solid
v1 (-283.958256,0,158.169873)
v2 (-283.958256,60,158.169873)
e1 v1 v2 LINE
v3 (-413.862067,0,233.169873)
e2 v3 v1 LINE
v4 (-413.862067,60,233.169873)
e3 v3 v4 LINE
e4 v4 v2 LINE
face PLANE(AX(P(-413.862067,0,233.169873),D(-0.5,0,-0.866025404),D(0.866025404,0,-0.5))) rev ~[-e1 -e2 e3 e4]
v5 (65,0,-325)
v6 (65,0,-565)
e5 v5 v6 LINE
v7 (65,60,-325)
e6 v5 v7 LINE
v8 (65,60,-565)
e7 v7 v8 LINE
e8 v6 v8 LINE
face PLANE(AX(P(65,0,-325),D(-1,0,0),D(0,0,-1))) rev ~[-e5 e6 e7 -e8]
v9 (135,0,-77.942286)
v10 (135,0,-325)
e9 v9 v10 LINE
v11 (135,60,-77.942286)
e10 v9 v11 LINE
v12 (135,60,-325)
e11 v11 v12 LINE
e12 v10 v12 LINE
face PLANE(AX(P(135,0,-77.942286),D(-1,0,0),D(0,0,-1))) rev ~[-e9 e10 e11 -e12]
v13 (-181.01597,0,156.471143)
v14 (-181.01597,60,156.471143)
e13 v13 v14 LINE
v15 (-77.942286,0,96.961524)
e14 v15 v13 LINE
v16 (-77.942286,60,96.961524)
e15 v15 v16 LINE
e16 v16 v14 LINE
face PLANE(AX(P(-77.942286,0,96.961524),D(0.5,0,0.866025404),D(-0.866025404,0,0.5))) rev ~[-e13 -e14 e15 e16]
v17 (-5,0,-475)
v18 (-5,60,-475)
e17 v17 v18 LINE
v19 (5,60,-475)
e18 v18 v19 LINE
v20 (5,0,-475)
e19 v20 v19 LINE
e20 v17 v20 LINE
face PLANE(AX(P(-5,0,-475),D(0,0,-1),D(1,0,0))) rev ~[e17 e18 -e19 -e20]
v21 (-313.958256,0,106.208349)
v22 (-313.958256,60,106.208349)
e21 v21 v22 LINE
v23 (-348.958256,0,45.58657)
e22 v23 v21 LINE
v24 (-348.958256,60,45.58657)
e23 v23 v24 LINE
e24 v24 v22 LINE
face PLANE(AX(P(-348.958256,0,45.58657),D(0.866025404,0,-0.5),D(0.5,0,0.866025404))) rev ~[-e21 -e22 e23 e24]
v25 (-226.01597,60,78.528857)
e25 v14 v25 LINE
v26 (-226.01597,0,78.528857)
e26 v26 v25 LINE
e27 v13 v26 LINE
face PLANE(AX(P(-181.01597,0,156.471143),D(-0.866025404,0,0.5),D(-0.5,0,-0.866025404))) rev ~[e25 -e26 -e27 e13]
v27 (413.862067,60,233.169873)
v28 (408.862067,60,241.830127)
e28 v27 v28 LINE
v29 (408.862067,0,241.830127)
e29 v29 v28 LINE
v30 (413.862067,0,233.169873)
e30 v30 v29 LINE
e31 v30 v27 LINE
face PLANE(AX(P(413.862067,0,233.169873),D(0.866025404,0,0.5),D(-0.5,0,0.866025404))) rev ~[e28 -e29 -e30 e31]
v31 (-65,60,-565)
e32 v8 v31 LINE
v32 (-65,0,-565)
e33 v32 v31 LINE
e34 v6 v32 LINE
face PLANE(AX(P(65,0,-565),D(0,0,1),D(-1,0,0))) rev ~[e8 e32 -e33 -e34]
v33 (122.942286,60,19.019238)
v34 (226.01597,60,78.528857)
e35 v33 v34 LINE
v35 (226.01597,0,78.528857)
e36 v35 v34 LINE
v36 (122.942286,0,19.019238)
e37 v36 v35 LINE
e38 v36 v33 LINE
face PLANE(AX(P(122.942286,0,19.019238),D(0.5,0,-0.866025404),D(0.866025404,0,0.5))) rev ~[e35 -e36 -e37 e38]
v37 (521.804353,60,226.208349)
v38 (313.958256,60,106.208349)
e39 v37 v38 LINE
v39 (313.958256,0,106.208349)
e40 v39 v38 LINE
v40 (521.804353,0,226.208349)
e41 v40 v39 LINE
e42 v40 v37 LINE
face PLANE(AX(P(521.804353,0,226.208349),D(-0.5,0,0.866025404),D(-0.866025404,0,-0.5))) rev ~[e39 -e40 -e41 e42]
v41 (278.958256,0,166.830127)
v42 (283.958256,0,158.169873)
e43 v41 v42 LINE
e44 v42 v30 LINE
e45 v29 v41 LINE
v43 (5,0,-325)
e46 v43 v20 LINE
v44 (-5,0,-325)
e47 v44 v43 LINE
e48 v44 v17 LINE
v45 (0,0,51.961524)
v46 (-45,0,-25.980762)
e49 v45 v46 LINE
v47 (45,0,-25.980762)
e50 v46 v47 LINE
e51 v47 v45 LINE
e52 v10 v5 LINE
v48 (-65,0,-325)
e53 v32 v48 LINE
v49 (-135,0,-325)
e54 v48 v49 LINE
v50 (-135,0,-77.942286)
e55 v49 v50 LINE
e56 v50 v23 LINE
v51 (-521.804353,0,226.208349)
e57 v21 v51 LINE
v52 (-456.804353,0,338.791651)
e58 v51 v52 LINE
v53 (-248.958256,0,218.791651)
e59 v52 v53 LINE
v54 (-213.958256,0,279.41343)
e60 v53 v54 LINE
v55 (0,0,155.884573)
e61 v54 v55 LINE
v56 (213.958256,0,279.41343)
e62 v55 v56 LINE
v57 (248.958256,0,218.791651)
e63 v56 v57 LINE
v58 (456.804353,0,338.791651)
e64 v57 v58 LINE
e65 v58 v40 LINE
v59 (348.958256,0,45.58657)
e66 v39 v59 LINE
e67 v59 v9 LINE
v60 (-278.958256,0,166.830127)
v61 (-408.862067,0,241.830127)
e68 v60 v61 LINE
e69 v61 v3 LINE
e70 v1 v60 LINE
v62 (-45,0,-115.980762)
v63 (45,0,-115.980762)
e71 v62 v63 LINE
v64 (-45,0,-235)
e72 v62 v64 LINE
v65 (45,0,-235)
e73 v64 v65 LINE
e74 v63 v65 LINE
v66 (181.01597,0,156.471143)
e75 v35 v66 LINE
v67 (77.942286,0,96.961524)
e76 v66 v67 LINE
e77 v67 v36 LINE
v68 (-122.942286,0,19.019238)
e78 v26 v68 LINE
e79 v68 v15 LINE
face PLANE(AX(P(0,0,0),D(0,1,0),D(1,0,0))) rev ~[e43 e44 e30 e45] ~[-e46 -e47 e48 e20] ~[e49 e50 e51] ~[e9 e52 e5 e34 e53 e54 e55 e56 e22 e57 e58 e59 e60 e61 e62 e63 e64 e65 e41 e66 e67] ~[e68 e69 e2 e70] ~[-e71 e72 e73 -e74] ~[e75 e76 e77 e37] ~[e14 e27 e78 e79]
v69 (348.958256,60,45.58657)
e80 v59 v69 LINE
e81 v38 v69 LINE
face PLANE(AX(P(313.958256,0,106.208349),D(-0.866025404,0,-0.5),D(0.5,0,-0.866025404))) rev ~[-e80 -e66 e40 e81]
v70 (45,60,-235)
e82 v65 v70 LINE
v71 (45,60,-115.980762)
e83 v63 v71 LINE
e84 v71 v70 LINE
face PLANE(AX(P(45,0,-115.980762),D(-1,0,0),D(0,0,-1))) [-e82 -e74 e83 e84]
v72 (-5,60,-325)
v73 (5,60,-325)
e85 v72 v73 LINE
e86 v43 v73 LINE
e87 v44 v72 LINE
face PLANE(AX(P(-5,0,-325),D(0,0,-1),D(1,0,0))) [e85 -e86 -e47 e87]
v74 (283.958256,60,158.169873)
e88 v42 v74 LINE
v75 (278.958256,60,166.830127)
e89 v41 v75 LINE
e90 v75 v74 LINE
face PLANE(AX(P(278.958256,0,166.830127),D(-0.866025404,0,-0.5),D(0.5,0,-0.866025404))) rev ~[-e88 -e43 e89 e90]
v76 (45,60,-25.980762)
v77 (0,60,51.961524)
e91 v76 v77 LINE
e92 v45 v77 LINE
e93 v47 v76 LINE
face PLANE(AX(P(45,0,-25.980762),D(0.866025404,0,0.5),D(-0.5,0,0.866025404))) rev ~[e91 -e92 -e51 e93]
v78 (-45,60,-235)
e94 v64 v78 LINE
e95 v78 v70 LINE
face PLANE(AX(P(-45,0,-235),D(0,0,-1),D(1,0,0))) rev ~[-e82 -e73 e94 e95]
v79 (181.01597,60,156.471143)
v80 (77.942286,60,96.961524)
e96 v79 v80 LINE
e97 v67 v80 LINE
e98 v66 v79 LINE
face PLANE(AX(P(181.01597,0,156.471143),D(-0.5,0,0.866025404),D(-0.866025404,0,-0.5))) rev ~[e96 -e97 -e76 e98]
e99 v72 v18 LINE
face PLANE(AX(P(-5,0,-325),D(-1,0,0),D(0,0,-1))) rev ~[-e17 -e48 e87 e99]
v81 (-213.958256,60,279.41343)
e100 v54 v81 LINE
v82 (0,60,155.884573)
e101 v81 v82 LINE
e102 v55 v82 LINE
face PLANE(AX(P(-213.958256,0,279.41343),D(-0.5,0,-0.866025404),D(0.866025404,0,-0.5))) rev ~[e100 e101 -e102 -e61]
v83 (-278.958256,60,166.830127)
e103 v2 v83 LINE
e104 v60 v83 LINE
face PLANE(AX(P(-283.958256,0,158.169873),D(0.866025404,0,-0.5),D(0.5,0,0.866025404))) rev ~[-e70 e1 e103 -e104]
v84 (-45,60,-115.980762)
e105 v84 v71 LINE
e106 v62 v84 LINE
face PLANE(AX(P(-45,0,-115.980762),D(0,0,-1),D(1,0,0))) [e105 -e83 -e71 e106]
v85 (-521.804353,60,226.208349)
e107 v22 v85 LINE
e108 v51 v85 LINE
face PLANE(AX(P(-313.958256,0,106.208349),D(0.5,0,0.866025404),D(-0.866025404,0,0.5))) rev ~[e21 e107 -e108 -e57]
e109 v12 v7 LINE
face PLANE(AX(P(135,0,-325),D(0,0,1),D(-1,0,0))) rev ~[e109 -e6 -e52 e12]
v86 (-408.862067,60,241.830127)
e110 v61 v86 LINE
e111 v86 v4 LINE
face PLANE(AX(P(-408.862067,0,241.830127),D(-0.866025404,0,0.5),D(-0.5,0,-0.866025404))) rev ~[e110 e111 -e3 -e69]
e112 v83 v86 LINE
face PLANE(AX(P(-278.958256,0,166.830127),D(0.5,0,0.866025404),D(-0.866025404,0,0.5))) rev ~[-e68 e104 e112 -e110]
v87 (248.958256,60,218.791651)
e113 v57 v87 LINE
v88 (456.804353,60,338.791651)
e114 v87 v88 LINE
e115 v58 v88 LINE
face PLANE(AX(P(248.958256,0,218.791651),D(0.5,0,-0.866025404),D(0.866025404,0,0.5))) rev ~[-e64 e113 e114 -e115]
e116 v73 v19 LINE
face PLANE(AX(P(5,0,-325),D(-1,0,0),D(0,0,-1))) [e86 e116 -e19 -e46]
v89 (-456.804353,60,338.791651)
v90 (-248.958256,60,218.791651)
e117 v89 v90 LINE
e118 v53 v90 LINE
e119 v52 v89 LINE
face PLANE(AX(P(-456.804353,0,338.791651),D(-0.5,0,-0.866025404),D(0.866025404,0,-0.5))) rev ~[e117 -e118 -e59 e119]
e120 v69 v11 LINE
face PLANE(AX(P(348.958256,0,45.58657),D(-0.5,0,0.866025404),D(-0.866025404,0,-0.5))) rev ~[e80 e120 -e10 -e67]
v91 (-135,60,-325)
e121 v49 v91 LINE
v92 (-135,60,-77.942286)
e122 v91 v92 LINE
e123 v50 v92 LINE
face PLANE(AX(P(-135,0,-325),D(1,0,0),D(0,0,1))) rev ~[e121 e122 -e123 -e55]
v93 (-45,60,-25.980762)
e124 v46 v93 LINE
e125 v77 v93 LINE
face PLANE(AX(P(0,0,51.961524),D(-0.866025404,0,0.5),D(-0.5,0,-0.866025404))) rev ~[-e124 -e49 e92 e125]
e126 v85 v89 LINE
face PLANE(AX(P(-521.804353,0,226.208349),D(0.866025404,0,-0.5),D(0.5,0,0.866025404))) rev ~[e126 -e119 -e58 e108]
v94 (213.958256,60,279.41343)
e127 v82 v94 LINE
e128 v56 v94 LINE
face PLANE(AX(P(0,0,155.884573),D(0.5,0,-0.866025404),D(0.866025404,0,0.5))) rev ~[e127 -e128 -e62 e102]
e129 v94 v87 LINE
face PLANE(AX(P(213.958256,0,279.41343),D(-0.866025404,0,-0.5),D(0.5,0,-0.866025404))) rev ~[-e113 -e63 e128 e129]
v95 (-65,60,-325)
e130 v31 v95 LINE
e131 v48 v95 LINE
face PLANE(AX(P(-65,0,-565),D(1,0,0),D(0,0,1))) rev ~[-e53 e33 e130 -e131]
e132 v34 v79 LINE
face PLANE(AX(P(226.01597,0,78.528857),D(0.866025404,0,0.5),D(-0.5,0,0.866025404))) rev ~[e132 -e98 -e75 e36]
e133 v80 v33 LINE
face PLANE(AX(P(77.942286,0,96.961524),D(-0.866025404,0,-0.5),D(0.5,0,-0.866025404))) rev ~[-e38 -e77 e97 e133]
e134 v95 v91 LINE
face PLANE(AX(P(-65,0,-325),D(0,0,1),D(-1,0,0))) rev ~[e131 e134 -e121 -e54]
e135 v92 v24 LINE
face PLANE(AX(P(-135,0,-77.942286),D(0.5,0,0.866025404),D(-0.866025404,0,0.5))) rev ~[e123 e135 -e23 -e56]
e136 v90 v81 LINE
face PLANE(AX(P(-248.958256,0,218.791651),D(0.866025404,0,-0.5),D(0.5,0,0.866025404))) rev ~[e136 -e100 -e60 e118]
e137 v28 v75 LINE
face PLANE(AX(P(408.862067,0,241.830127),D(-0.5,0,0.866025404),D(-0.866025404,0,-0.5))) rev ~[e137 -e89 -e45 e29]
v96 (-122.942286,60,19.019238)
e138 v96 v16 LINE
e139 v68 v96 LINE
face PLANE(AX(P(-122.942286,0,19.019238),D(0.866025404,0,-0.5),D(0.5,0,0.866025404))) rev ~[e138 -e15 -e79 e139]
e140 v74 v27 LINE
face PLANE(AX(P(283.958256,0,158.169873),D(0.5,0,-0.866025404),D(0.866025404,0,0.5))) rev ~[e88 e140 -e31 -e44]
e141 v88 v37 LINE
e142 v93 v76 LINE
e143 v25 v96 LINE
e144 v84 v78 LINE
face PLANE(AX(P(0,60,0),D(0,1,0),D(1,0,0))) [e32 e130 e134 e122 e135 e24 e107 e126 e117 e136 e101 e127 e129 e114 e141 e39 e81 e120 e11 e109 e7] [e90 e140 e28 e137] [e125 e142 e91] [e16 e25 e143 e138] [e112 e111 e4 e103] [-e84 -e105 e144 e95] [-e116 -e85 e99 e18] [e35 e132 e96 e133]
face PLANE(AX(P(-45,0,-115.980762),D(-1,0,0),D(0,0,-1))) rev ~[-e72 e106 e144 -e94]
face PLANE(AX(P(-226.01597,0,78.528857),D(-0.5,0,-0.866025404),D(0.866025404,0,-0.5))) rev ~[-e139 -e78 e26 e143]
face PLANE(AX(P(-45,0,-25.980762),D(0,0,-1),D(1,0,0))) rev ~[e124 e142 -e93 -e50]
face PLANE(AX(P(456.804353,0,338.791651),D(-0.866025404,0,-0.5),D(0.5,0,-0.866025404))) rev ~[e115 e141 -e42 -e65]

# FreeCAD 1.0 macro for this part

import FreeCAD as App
import Part
import Sketcher
Q = App.Units.Quantity

doc = App.newDocument("Part")
body = doc.addObject("PartDesign::Body", "Body")

sketch1 = doc.addObject("Sketcher::SketchObject", "Sketch")
body.addObject(sketch1)
sketch1.AttachmentSupport = (doc.XZ_Plane, [""])
sketch1.MapMode = "FlatFace"
sketch1.addGeometry([
    Part.LineSegment(App.Vector(-213.958256, 279.41343, 0), App.Vector(0, 155.884573, 0)),
    Part.LineSegment(App.Vector(0, 155.884573, 0), App.Vector(213.958256, 279.41343, 0)),
    Part.LineSegment(App.Vector(213.958256, 279.41343, 0), App.Vector(248.958256, 218.791651, 0)),
    Part.LineSegment(App.Vector(248.958256, 218.791651, 0), App.Vector(456.804353, 338.791651, 0)),
    Part.LineSegment(App.Vector(456.804353, 338.791651, 0), App.Vector(521.804353, 226.208349, 0)),
    Part.LineSegment(App.Vector(521.804353, 226.208349, 0), App.Vector(313.958256, 106.208349, 0)),
    Part.LineSegment(App.Vector(313.958256, 106.208349, 0), App.Vector(348.958256, 45.58657, 0)),
    Part.LineSegment(App.Vector(348.958256, 45.58657, 0), App.Vector(135, -77.942286, 0)),
    Part.LineSegment(App.Vector(135, -77.942286, 0), App.Vector(135, -325, 0)),
    Part.LineSegment(App.Vector(135, -325, 0), App.Vector(65, -325, 0)),
    Part.LineSegment(App.Vector(65, -325, 0), App.Vector(65, -565, 0)),
    Part.LineSegment(App.Vector(65, -565, 0), App.Vector(-65, -565, 0)),
    Part.LineSegment(App.Vector(-65, -565, 0), App.Vector(-65, -325, 0)),
    Part.LineSegment(App.Vector(-65, -325, 0), App.Vector(-135, -325, 0)),
    Part.LineSegment(App.Vector(-135, -325, 0), App.Vector(-135, -77.942286, 0)),
    Part.LineSegment(App.Vector(-135, -77.942286, 0), App.Vector(-348.958256, 45.58657, 0)),
    Part.LineSegment(App.Vector(-348.958256, 45.58657, 0), App.Vector(-313.958256, 106.208349, 0)),
    Part.LineSegment(App.Vector(-313.958256, 106.208349, 0), App.Vector(-521.804353, 226.208349, 0)),
    Part.LineSegment(App.Vector(-521.804353, 226.208349, 0), App.Vector(-456.804353, 338.791651, 0)),
    Part.LineSegment(App.Vector(-456.804353, 338.791651, 0), App.Vector(-248.958256, 218.791651, 0)),
    Part.LineSegment(App.Vector(-248.958256, 218.791651, 0), App.Vector(-213.958256, 279.41343, 0)),
    Part.LineSegment(App.Vector(-278.958256, 166.830127, 0), App.Vector(-408.862067, 241.830127, 0)),
    Part.LineSegment(App.Vector(-408.862067, 241.830127, 0), App.Vector(-413.862067, 233.169873, 0)),
    Part.LineSegment(App.Vector(-413.862067, 233.169873, 0), App.Vector(-283.958256, 158.169873, 0)),
    Part.LineSegment(App.Vector(-283.958256, 158.169873, 0), App.Vector(-278.958256, 166.830127, 0)),
    Part.LineSegment(App.Vector(-226.01597, 78.528857, 0), App.Vector(-122.942286, 19.019238, 0)),
    Part.LineSegment(App.Vector(-122.942286, 19.019238, 0), App.Vector(-77.942286, 96.961524, 0)),
    Part.LineSegment(App.Vector(-77.942286, 96.961524, 0), App.Vector(-181.01597, 156.471143, 0)),
    Part.LineSegment(App.Vector(-181.01597, 156.471143, 0), App.Vector(-226.01597, 78.528857, 0)),
    Part.LineSegment(App.Vector(226.01597, 78.528857, 0), App.Vector(181.01597, 156.471143, 0)),
    Part.LineSegment(App.Vector(181.01597, 156.471143, 0), App.Vector(77.942286, 96.961524, 0)),
    Part.LineSegment(App.Vector(77.942286, 96.961524, 0), App.Vector(122.942286, 19.019238, 0)),
    Part.LineSegment(App.Vector(122.942286, 19.019238, 0), App.Vector(226.01597, 78.528857, 0)),
    Part.LineSegment(App.Vector(408.862067, 241.830127, 0), App.Vector(278.958256, 166.830127, 0)),
    Part.LineSegment(App.Vector(278.958256, 166.830127, 0), App.Vector(283.958256, 158.169873, 0)),
    Part.LineSegment(App.Vector(283.958256, 158.169873, 0), App.Vector(413.862067, 233.169873, 0)),
    Part.LineSegment(App.Vector(413.862067, 233.169873, 0), App.Vector(408.862067, 241.830127, 0)),
    Part.LineSegment(App.Vector(45, -25.980762, 0), App.Vector(0, 51.961524, 0)),
    Part.LineSegment(App.Vector(0, 51.961524, 0), App.Vector(-45, -25.980762, 0)),
    Part.LineSegment(App.Vector(-45, -25.980762, 0), App.Vector(45, -25.980762, 0)),
    Part.LineSegment(App.Vector(45, -115.980762, 0), App.Vector(-45, -115.980762, 0)),
    Part.LineSegment(App.Vector(-45, -115.980762, 0), App.Vector(-45, -235, 0)),
    Part.LineSegment(App.Vector(-45, -235, 0), App.Vector(45, -235, 0)),
    Part.LineSegment(App.Vector(45, -235, 0), App.Vector(45, -115.980762, 0)),
    Part.LineSegment(App.Vector(5, -325, 0), App.Vector(-5, -325, 0)),
    Part.LineSegment(App.Vector(-5, -325, 0), App.Vector(-5, -475, 0)),
    Part.LineSegment(App.Vector(-5, -475, 0), App.Vector(5, -475, 0)),
    Part.LineSegment(App.Vector(5, -475, 0), App.Vector(5, -325, 0)),
], False)
sketch1.addConstraint([
    Sketcher.Constraint("Coincident", 0, 2, 1, 1),
    Sketcher.Constraint("Coincident", 1, 2, 2, 1),
    Sketcher.Constraint("Coincident", 2, 2, 3, 1),
    Sketcher.Constraint("Coincident", 3, 2, 4, 1),
    Sketcher.Constraint("Coincident", 4, 2, 5, 1),
    Sketcher.Constraint("Coincident", 5, 2, 6, 1),
    Sketcher.Constraint("Coincident", 6, 2, 7, 1),
    Sketcher.Constraint("Coincident", 7, 2, 8, 1),
    Sketcher.Constraint("Coincident", 8, 2, 9, 1),
    Sketcher.Constraint("Coincident", 9, 2, 10, 1),
    Sketcher.Constraint("Coincident", 10, 2, 11, 1),
    Sketcher.Constraint("Coincident", 11, 2, 12, 1),
    Sketcher.Constraint("Coincident", 12, 2, 13, 1),
    Sketcher.Constraint("Coincident", 13, 2, 14, 1),
    Sketcher.Constraint("Coincident", 14, 2, 15, 1),
    Sketcher.Constraint("Coincident", 15, 2, 16, 1),
    Sketcher.Constraint("Coincident", 16, 2, 17, 1),
    Sketcher.Constraint("Coincident", 17, 2, 18, 1),
    Sketcher.Constraint("Coincident", 18, 2, 19, 1),
    Sketcher.Constraint("Coincident", 19, 2, 20, 1),
    Sketcher.Constraint("Coincident", 20, 2, 0, 1),
    Sketcher.Constraint("Coincident", 21, 2, 22, 1),
    Sketcher.Constraint("Coincident", 22, 2, 23, 1),
    Sketcher.Constraint("Coincident", 23, 2, 24, 1),
    Sketcher.Constraint("Coincident", 24, 2, 21, 1),
    Sketcher.Constraint("Coincident", 25, 2, 26, 1),
    Sketcher.Constraint("Coincident", 26, 2, 27, 1),
    Sketcher.Constraint("Coincident", 27, 2, 28, 1),
    Sketcher.Constraint("Coincident", 28, 2, 25, 1),
    Sketcher.Constraint("Coincident", 29, 2, 30, 1),
    Sketcher.Constraint("Coincident", 30, 2, 31, 1),
    Sketcher.Constraint("Coincident", 31, 2, 32, 1),
    Sketcher.Constraint("Coincident", 32, 2, 29, 1),
    Sketcher.Constraint("Coincident", 33, 2, 34, 1),
    Sketcher.Constraint("Coincident", 34, 2, 35, 1),
    Sketcher.Constraint("Coincident", 35, 2, 36, 1),
    Sketcher.Constraint("Coincident", 36, 2, 33, 1),
    Sketcher.Constraint("Coincident", 37, 2, 38, 1),
    Sketcher.Constraint("Coincident", 38, 2, 39, 1),
    Sketcher.Constraint("Coincident", 39, 2, 37, 1),
    Sketcher.Constraint("Coincident", 40, 2, 41, 1),
    Sketcher.Constraint("Coincident", 41, 2, 42, 1),
    Sketcher.Constraint("Coincident", 42, 2, 43, 1),
    Sketcher.Constraint("Coincident", 43, 2, 40, 1),
    Sketcher.Constraint("Coincident", 44, 2, 45, 1),
    Sketcher.Constraint("Coincident", 45, 2, 46, 1),
    Sketcher.Constraint("Coincident", 46, 2, 47, 1),
    Sketcher.Constraint("Coincident", 47, 2, 44, 1),
    Sketcher.Constraint("Vertical", 8),
    Sketcher.Constraint("Horizontal", 9),
    Sketcher.Constraint("Vertical", 10),
    Sketcher.Constraint("Horizontal", 11),
    Sketcher.Constraint("Vertical", 12),
    Sketcher.Constraint("Horizontal", 13),
    Sketcher.Constraint("Vertical", 14),
    Sketcher.Constraint("Horizontal", 39),
    Sketcher.Constraint("Horizontal", 40),
    Sketcher.Constraint("Vertical", 41),
    Sketcher.Constraint("Horizontal", 42),
    Sketcher.Constraint("Vertical", 43),
    Sketcher.Constraint("Horizontal", 44),
    Sketcher.Constraint("Vertical", 45),
    Sketcher.Constraint("Horizontal", 46),
    Sketcher.Constraint("Vertical", 47),
    Sketcher.Constraint("Symmetric", 9, 2, 12, 2, -2),
    Sketcher.Constraint("Symmetric", 7, 2, 14, 2, -2),
    Sketcher.Constraint("Symmetric", 6, 2, 15, 2, -2),
    Sketcher.Constraint("Symmetric", 5, 2, 16, 2, -2),
    Sketcher.Constraint("Symmetric", 4, 2, 17, 2, -2),
    Sketcher.Constraint("Symmetric", 3, 2, 18, 2, -2),
    Sketcher.Constraint("Symmetric", 2, 2, 19, 2, -2),
    Sketcher.Constraint("Symmetric", 1, 2, 20, 2, -2),
    Sketcher.Constraint("Symmetric", 27, 2, 29, 2, -2),
    Sketcher.Constraint("Symmetric", 26, 2, 30, 2, -2),
    Sketcher.Constraint("Symmetric", 25, 2, 31, 2, -2),
    Sketcher.Constraint("Symmetric", 28, 2, 32, 2, -2),
    Sketcher.Constraint("Symmetric", 24, 2, 33, 2, -2),
    Sketcher.Constraint("Symmetric", 23, 2, 34, 2, -2),
    Sketcher.Constraint("Symmetric", 22, 2, 35, 2, -2),
    Sketcher.Constraint("Symmetric", 21, 2, 36, 2, -2),
    Sketcher.Constraint("PointOnObject", 0, 2, -2),
    Sketcher.Constraint("PointOnObject", 37, 2, -2),
    Sketcher.Constraint("Perpendicular", 1, 2),
    Sketcher.Constraint("Perpendicular", 2, 3),
    Sketcher.Constraint("Perpendicular", 3, 4),
    Sketcher.Constraint("Perpendicular", 4, 5),
    Sketcher.Constraint("Perpendicular", 5, 6),
    Sketcher.Constraint("Perpendicular", 6, 7),
    Sketcher.Constraint("Perpendicular", 20, 21),
    Sketcher.Constraint("Perpendicular", 21, 22),
    Sketcher.Constraint("Perpendicular", 22, 23),
    Sketcher.Constraint("Perpendicular", 23, 24),
    Sketcher.Constraint("Perpendicular", 24, 25),
    Sketcher.Constraint("Perpendicular", 25, 26),
    Sketcher.Constraint("Perpendicular", 26, 27),
    Sketcher.Constraint("Perpendicular", 27, 28),
    Sketcher.Constraint("Parallel", 36, 37),
    Sketcher.Constraint("Parallel", 28, 38),
    Sketcher.Constraint("Horizontal", 13, 2, 44, 2),
    Sketcher.Constraint("Vertical", 38, 2, 40, 2),
    Sketcher.Constraint("Vertical", 39, 2, 42, 2),
    Sketcher.Constraint("Equal", 3, 5),
    Sketcher.Constraint("Equal", 2, 6),
    Sketcher.Constraint("Equal", 1, 7),
    Sketcher.Constraint("Equal", 31, 37),
    Sketcher.Constraint("DistanceX", 9, 2, 9, 1, Q("70 mm")),
    Sketcher.Constraint("DistanceX", 11, 2, 11, 1, Q("130 mm")),
    Sketcher.Constraint("DistanceX", 39, 1, 39, 2, Q("90 mm")),
    Sketcher.Constraint("DistanceX", 44, 2, 44, 1, Q("10 mm")),
    Sketcher.Constraint("DistanceY", 10, 2, 10, 1, Q("240 mm")),
    Sketcher.Constraint("DistanceY", 45, 2, 45, 1, Q("150 mm")),
    Sketcher.Constraint("Angle", 0, Q("-30 deg")),
    Sketcher.Constraint("Distance", 2, Q("70 mm")),
    Sketcher.Constraint("Distance", 3, Q("240 mm")),
    Sketcher.Constraint("Distance", 21, Q("150 mm")),
    Sketcher.Constraint("Distance", 22, Q("10 mm")),
    Sketcher.Constraint("DistanceY", 8, 2, -1, 1, Q("325 mm")),
    Sketcher.Constraint("DistanceY", 41, 2, -1, 1, Q("235 mm")),
    Sketcher.Constraint("DistanceX", 44, 2, -1, 1, Q("5 mm")),
    Sketcher.Constraint("DistanceX", 16, 2, 23, 2, Q("30 mm")),
    Sketcher.Constraint("DistanceY", 37, 2, 26, 2, Q("45 mm")),
    Sketcher.Constraint("DistanceY", 40, 2, 38, 2, Q("90 mm")),
    Sketcher.Constraint("DistanceY", 8, 2, 8, 1, Q("247.057714 mm")),
    Sketcher.Constraint("DistanceY", 41, 2, 41, 1, Q("119.019238 mm")),
    Sketcher.Constraint("DistanceY", -1, 1, 1, 2, Q("279.41343 mm")),
    Sketcher.Constraint("DistanceX", 27, 2, -1, 1, Q("181.01597 mm")),
    Sketcher.Constraint("DistanceY", 17, 2, 21, 2, Q("15.621778 mm")),
    Sketcher.Constraint("DistanceX", 16, 2, 25, 2, Q("191.01597 mm")),
])
pad1 = doc.addObject("PartDesign::Pad", "Pad")
body.addObject(pad1)
pad1.Profile = sketch1
pad1.Length = 60
pad1.Reversed = True

doc.recompute()
